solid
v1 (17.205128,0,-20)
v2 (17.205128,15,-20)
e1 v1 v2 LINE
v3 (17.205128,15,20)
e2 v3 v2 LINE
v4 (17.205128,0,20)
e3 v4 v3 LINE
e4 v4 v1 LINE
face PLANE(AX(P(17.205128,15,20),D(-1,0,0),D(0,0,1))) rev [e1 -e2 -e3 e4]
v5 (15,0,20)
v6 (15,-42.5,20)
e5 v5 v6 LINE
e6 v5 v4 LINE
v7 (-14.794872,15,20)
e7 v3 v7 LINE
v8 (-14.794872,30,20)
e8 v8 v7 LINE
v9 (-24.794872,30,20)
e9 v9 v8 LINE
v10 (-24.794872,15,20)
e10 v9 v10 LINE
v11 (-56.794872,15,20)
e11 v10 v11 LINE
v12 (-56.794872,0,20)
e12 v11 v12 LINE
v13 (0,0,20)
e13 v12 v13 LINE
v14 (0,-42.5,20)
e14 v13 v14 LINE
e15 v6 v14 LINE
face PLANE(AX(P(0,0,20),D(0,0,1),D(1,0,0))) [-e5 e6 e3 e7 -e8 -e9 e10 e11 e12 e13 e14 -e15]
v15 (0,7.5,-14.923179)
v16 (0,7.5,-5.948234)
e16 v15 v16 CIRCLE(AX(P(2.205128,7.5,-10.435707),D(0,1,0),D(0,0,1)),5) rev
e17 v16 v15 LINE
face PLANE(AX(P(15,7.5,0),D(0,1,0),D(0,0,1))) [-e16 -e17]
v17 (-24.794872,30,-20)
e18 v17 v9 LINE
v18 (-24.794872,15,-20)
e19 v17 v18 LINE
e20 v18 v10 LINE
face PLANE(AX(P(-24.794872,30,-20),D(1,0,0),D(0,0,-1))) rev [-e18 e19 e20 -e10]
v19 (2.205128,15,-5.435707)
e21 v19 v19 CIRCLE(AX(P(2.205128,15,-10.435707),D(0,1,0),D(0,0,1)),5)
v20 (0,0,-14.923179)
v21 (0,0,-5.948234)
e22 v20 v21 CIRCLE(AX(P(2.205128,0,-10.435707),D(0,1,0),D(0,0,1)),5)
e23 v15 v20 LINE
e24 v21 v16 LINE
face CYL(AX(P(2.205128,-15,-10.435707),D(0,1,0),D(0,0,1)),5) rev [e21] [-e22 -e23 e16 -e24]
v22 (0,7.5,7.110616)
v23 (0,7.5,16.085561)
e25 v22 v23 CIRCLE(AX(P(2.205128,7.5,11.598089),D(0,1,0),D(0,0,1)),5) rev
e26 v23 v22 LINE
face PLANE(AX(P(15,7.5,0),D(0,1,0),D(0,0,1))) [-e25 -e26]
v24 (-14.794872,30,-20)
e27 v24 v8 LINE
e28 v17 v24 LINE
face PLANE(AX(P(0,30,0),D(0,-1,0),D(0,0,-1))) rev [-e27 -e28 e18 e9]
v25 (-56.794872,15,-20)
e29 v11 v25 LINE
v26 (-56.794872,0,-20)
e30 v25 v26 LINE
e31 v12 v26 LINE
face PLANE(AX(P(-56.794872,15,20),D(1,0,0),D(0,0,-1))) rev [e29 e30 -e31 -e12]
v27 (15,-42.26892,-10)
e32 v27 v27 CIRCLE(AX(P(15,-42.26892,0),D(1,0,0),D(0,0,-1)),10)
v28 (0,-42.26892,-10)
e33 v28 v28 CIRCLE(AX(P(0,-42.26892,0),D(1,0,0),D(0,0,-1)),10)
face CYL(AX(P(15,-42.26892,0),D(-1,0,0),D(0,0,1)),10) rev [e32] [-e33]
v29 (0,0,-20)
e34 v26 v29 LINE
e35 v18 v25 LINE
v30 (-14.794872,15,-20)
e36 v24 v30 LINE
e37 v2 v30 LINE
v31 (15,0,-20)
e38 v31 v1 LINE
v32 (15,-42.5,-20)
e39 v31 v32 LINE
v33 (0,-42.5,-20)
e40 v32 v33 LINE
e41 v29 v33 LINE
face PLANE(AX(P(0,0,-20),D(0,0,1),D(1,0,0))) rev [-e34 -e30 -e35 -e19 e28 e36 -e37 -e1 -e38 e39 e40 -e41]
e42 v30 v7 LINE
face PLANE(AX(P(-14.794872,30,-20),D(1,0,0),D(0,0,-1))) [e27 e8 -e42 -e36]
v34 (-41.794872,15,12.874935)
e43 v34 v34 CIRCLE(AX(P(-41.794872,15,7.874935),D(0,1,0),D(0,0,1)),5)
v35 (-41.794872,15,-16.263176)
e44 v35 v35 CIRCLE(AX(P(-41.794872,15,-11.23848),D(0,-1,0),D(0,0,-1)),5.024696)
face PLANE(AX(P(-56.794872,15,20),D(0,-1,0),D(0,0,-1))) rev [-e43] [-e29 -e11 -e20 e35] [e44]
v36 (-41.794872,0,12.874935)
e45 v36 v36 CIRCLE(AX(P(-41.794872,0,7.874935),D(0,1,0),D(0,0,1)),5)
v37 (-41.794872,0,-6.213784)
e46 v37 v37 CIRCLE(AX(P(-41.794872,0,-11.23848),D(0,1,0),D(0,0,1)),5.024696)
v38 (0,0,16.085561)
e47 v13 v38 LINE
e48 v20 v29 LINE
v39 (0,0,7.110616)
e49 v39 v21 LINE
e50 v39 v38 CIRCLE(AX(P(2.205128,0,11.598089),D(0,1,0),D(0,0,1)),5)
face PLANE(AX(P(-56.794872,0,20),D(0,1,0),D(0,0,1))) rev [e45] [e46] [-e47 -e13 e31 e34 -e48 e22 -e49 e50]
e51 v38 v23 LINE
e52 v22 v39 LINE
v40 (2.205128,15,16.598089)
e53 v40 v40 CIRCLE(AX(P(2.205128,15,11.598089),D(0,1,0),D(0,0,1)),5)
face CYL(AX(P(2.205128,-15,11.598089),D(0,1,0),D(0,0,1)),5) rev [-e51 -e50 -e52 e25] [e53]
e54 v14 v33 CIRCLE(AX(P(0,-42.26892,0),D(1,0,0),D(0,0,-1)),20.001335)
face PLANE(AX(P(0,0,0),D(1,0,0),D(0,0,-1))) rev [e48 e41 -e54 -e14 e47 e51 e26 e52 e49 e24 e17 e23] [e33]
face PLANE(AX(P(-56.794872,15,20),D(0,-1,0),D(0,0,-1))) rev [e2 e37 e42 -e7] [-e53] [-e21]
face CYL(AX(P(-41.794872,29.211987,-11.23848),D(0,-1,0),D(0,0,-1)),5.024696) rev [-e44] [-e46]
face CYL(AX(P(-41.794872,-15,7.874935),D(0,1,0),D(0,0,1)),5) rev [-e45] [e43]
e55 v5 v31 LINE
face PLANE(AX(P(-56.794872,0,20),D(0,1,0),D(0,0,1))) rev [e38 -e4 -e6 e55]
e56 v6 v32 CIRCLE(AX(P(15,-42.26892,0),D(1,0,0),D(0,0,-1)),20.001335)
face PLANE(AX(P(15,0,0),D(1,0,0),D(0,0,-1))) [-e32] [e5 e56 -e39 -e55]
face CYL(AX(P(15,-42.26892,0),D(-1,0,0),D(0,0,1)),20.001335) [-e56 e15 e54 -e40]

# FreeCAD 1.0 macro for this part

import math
import FreeCAD as App
import Part
import Sketcher

V = App.Vector

doc = App.newDocument("Part")
body = doc.addObject("PartDesign::Body", "Body")

# Sketch on XY plane
sketch1 = doc.addObject("Sketcher::SketchObject", "Sketch")
body.addObject(sketch1)
sketch1.AttachmentSupport = (doc.XY_Plane, [""])
sketch1.MapMode = "FlatFace"
sketch1.addGeometry(Part.LineSegment(V(-56.794872, 15, 0), V(-56.794872, 0, 0)), False)
sketch1.addGeometry(Part.LineSegment(V(-56.794872, 0, 0), V(17.205128, 0, 0)), False)
sketch1.addGeometry(Part.LineSegment(V(17.205128, 0, 0), V(17.205128, 15, 0)), False)
sketch1.addGeometry(Part.LineSegment(V(17.205128, 15, 0), V(-56.794872, 15, 0)), False)
sketch1.addConstraint(Sketcher.Constraint("Coincident", 0, 2, 1, 1))
sketch1.addConstraint(Sketcher.Constraint("Coincident", 1, 2, 2, 1))
sketch1.addConstraint(Sketcher.Constraint("Coincident", 2, 2, 3, 1))
sketch1.addConstraint(Sketcher.Constraint("Coincident", 3, 2, 0, 1))
sketch1.addConstraint(Sketcher.Constraint("Vertical", 0))
sketch1.addConstraint(Sketcher.Constraint("Horizontal", 1))
sketch1.addConstraint(Sketcher.Constraint("Vertical", 2))
sketch1.addConstraint(Sketcher.Constraint("Horizontal", 3))
sketch1.addConstraint(Sketcher.Constraint("PointOnObject", 0, 2, -1))
sketch1.addConstraint(Sketcher.Constraint("DistanceX", 1, 1, 1, 2, 74.0))
sketch1.addConstraint(Sketcher.Constraint("DistanceY", 0, 2, 0, 1, 15.0))
sketch1.addConstraint(Sketcher.Constraint("DistanceX", 0, 2, -1, 1, 56.794872))
pad1 = doc.addObject("PartDesign::Pad", "Pad")
body.addObject(pad1)
pad1.Profile = sketch1
pad1.Length = 40
pad1.Midplane = True

# Sketch on XZ plane
sketch2 = doc.addObject("Sketcher::SketchObject", "Sketch001")
body.addObject(sketch2)
sketch2.AttachmentSupport = (doc.XZ_Plane, [""])
sketch2.MapMode = "FlatFace"
sketch2.addGeometry(Part.LineSegment(V(-24.794872, -20, 0), V(-24.794872, 20, 0)), False)
sketch2.addGeometry(Part.LineSegment(V(-24.794872, 20, 0), V(-14.794872, 20, 0)), False)
sketch2.addGeometry(Part.LineSegment(V(-14.794872, 20, 0), V(-14.794872, -20, 0)), False)
sketch2.addGeometry(Part.LineSegment(V(-14.794872, -20, 0), V(-24.794872, -20, 0)), False)
sketch2.addConstraint(Sketcher.Constraint("Coincident", 0, 2, 1, 1))
sketch2.addConstraint(Sketcher.Constraint("Coincident", 1, 2, 2, 1))
sketch2.addConstraint(Sketcher.Constraint("Coincident", 2, 2, 3, 1))
sketch2.addConstraint(Sketcher.Constraint("Coincident", 3, 2, 0, 1))
sketch2.addConstraint(Sketcher.Constraint("Vertical", 0))
sketch2.addConstraint(Sketcher.Constraint("Horizontal", 1))
sketch2.addConstraint(Sketcher.Constraint("Vertical", 2))
sketch2.addConstraint(Sketcher.Constraint("Horizontal", 3))
sketch2.addConstraint(Sketcher.Constraint("DistanceX", 1, 1, 1, 2, 10.0))
sketch2.addConstraint(Sketcher.Constraint("DistanceY", 0, 1, 0, 2, 40.0))
sketch2.addConstraint(Sketcher.Constraint("DistanceY", -1, 1, 0, 2, 20.0))
sketch2.addConstraint(Sketcher.Constraint("DistanceX", 0, 2, -1, 1, 24.794872))
pad2 = doc.addObject("PartDesign::Pad", "Pad001")
body.addObject(pad2)
pad2.Profile = sketch2
pad2.Length = 30
pad2.Reversed = True

# Sketch on XZ plane
sketch3 = doc.addObject("Sketcher::SketchObject", "Sketch002")
body.addObject(sketch3)
sketch3.AttachmentSupport = (doc.XZ_Plane, [""])
sketch3.MapMode = "FlatFace"
sketch3.addGeometry(Part.Circle(V(-41.794872, -11.23848, 0), V(0, 0, 1), 5.024696), False)
sketch3.addConstraint(Sketcher.Constraint("Diameter", 0, 10.049392))
sketch3.addConstraint(Sketcher.Constraint("DistanceX", 0, 3, -1, 1, 41.794872))
sketch3.addConstraint(Sketcher.Constraint("DistanceY", 0, 3, -1, 1, 11.23848))
pocket1 = doc.addObject("PartDesign::Pocket", "Pocket")
body.addObject(pocket1)
pocket1.Profile = sketch3
pocket1.Length = 15

# Sketch on XZ plane
sketch4 = doc.addObject("Sketcher::SketchObject", "Sketch003")
body.addObject(sketch4)
sketch4.AttachmentSupport = (doc.XZ_Plane, [""])
sketch4.MapMode = "FlatFace"
sketch4.AttachmentOffset = App.Placement(V(0, 0, -15), App.Rotation())
sketch4.addGeometry(Part.Circle(V(-41.794872, 7.874935, 0), V(0, 0, 1), 5), False)
sketch4.addConstraint(Sketcher.Constraint("Diameter", 0, 10.0))
sketch4.addConstraint(Sketcher.Constraint("DistanceX", 0, 3, -1, 1, 41.794872))
sketch4.addConstraint(Sketcher.Constraint("DistanceY", -1, 1, 0, 3, 7.874935))
pocket2 = doc.addObject("PartDesign::Pocket", "Pocket001")
body.addObject(pocket2)
pocket2.Profile = sketch4
pocket2.Length = 30
pocket2.Reversed = True

# Sketch on XZ plane
sketch5 = doc.addObject("Sketcher::SketchObject", "Sketch004")
body.addObject(sketch5)
sketch5.AttachmentSupport = (doc.XZ_Plane, [""])
sketch5.MapMode = "FlatFace"
sketch5.AttachmentOffset = App.Placement(V(0, 0, -15), App.Rotation())
sketch5.addGeometry(Part.Circle(V(2.205128, -10.435707, 0), V(0, 0, 1), 5), False)
sketch5.addConstraint(Sketcher.Constraint("Diameter", 0, 10.0))
sketch5.addConstraint(Sketcher.Constraint("DistanceX", -1, 1, 0, 3, 2.205128))
sketch5.addConstraint(Sketcher.Constraint("DistanceY", 0, 3, -1, 1, 10.435707))
pocket3 = doc.addObject("PartDesign::Pocket", "Pocket002")
body.addObject(pocket3)
pocket3.Profile = sketch5
pocket3.Length = 30
pocket3.Reversed = True

# Sketch on XZ plane
sketch6 = doc.addObject("Sketcher::SketchObject", "Sketch005")
body.addObject(sketch6)
sketch6.AttachmentSupport = (doc.XZ_Plane, [""])
sketch6.MapMode = "FlatFace"
sketch6.AttachmentOffset = App.Placement(V(0, 0, -15), App.Rotation())
sketch6.addGeometry(Part.Circle(V(2.205128, 11.598089, 0), V(0, 0, 1), 5), False)
sketch6.addConstraint(Sketcher.Constraint("Diameter", 0, 10.0))
sketch6.addConstraint(Sketcher.Constraint("DistanceX", -1, 1, 0, 3, 2.205128))
sketch6.addConstraint(Sketcher.Constraint("DistanceY", -1, 1, 0, 3, 11.598089))
pocket4 = doc.addObject("PartDesign::Pocket", "Pocket003")
body.addObject(pocket4)
pocket4.Profile = sketch6
pocket4.Length = 30
pocket4.Reversed = True

# Sketch on YZ plane
sketch7 = doc.addObject("Sketcher::SketchObject", "Sketch006")
body.addObject(sketch7)
sketch7.AttachmentSupport = (doc.YZ_Plane, [""])
sketch7.MapMode = "FlatFace"
sketch7.addGeometry(Part.LineSegment(V(7.5, -20, 0), V(7.5, 20, 0)), False)
sketch7.addGeometry(Part.LineSegment(V(7.5, 20, 0), V(-42.5, 20, 0)), False)
sketch7.addGeometry(Part.ArcOfCircle(Part.Circle(V(-42.26892, 0, 0), V(0, 0, 1), 20.001335), math.radians(90.661967), math.radians(269.338033)), False)
sketch7.addGeometry(Part.LineSegment(V(-42.5, -20, 0), V(7.5, -20, 0)), False)
sketch7.addGeometry(Part.Circle(V(-42.26892, 0, 0), V(0, 0, 1), 10), False)
sketch7.addConstraint(Sketcher.Constraint("Coincident", 0, 2, 1, 1))
sketch7.addConstraint(Sketcher.Constraint("Coincident", 1, 2, 2, 1))
sketch7.addConstraint(Sketcher.Constraint("Coincident", 2, 2, 3, 1))
sketch7.addConstraint(Sketcher.Constraint("Coincident", 3, 2, 0, 1))
sketch7.addConstraint(Sketcher.Constraint("Vertical", 0))
sketch7.addConstraint(Sketcher.Constraint("Horizontal", 1))
sketch7.addConstraint(Sketcher.Constraint("Horizontal", 3))
sketch7.addConstraint(Sketcher.Constraint("Coincident", 4, 3, 2, 3))
sketch7.addConstraint(Sketcher.Constraint("Symmetric", 1, 2, 2, 2, -1))
sketch7.addConstraint(Sketcher.Constraint("Diameter", 4, 20.0))
sketch7.addConstraint(Sketcher.Constraint("DistanceX", 1, 2, 1, 1, 50.0))
sketch7.addConstraint(Sketcher.Constraint("DistanceY", 0, 1, 0, 2, 40.0))
sketch7.addConstraint(Sketcher.Constraint("DistanceX", -1, 1, 0, 2, 7.5))
sketch7.addConstraint(Sketcher.Constraint("Radius", 2, 20.001335))
pad3 = doc.addObject("PartDesign::Pad", "Pad002")
body.addObject(pad3)
pad3.Profile = sketch7
pad3.Length = 15

doc.recompute()
